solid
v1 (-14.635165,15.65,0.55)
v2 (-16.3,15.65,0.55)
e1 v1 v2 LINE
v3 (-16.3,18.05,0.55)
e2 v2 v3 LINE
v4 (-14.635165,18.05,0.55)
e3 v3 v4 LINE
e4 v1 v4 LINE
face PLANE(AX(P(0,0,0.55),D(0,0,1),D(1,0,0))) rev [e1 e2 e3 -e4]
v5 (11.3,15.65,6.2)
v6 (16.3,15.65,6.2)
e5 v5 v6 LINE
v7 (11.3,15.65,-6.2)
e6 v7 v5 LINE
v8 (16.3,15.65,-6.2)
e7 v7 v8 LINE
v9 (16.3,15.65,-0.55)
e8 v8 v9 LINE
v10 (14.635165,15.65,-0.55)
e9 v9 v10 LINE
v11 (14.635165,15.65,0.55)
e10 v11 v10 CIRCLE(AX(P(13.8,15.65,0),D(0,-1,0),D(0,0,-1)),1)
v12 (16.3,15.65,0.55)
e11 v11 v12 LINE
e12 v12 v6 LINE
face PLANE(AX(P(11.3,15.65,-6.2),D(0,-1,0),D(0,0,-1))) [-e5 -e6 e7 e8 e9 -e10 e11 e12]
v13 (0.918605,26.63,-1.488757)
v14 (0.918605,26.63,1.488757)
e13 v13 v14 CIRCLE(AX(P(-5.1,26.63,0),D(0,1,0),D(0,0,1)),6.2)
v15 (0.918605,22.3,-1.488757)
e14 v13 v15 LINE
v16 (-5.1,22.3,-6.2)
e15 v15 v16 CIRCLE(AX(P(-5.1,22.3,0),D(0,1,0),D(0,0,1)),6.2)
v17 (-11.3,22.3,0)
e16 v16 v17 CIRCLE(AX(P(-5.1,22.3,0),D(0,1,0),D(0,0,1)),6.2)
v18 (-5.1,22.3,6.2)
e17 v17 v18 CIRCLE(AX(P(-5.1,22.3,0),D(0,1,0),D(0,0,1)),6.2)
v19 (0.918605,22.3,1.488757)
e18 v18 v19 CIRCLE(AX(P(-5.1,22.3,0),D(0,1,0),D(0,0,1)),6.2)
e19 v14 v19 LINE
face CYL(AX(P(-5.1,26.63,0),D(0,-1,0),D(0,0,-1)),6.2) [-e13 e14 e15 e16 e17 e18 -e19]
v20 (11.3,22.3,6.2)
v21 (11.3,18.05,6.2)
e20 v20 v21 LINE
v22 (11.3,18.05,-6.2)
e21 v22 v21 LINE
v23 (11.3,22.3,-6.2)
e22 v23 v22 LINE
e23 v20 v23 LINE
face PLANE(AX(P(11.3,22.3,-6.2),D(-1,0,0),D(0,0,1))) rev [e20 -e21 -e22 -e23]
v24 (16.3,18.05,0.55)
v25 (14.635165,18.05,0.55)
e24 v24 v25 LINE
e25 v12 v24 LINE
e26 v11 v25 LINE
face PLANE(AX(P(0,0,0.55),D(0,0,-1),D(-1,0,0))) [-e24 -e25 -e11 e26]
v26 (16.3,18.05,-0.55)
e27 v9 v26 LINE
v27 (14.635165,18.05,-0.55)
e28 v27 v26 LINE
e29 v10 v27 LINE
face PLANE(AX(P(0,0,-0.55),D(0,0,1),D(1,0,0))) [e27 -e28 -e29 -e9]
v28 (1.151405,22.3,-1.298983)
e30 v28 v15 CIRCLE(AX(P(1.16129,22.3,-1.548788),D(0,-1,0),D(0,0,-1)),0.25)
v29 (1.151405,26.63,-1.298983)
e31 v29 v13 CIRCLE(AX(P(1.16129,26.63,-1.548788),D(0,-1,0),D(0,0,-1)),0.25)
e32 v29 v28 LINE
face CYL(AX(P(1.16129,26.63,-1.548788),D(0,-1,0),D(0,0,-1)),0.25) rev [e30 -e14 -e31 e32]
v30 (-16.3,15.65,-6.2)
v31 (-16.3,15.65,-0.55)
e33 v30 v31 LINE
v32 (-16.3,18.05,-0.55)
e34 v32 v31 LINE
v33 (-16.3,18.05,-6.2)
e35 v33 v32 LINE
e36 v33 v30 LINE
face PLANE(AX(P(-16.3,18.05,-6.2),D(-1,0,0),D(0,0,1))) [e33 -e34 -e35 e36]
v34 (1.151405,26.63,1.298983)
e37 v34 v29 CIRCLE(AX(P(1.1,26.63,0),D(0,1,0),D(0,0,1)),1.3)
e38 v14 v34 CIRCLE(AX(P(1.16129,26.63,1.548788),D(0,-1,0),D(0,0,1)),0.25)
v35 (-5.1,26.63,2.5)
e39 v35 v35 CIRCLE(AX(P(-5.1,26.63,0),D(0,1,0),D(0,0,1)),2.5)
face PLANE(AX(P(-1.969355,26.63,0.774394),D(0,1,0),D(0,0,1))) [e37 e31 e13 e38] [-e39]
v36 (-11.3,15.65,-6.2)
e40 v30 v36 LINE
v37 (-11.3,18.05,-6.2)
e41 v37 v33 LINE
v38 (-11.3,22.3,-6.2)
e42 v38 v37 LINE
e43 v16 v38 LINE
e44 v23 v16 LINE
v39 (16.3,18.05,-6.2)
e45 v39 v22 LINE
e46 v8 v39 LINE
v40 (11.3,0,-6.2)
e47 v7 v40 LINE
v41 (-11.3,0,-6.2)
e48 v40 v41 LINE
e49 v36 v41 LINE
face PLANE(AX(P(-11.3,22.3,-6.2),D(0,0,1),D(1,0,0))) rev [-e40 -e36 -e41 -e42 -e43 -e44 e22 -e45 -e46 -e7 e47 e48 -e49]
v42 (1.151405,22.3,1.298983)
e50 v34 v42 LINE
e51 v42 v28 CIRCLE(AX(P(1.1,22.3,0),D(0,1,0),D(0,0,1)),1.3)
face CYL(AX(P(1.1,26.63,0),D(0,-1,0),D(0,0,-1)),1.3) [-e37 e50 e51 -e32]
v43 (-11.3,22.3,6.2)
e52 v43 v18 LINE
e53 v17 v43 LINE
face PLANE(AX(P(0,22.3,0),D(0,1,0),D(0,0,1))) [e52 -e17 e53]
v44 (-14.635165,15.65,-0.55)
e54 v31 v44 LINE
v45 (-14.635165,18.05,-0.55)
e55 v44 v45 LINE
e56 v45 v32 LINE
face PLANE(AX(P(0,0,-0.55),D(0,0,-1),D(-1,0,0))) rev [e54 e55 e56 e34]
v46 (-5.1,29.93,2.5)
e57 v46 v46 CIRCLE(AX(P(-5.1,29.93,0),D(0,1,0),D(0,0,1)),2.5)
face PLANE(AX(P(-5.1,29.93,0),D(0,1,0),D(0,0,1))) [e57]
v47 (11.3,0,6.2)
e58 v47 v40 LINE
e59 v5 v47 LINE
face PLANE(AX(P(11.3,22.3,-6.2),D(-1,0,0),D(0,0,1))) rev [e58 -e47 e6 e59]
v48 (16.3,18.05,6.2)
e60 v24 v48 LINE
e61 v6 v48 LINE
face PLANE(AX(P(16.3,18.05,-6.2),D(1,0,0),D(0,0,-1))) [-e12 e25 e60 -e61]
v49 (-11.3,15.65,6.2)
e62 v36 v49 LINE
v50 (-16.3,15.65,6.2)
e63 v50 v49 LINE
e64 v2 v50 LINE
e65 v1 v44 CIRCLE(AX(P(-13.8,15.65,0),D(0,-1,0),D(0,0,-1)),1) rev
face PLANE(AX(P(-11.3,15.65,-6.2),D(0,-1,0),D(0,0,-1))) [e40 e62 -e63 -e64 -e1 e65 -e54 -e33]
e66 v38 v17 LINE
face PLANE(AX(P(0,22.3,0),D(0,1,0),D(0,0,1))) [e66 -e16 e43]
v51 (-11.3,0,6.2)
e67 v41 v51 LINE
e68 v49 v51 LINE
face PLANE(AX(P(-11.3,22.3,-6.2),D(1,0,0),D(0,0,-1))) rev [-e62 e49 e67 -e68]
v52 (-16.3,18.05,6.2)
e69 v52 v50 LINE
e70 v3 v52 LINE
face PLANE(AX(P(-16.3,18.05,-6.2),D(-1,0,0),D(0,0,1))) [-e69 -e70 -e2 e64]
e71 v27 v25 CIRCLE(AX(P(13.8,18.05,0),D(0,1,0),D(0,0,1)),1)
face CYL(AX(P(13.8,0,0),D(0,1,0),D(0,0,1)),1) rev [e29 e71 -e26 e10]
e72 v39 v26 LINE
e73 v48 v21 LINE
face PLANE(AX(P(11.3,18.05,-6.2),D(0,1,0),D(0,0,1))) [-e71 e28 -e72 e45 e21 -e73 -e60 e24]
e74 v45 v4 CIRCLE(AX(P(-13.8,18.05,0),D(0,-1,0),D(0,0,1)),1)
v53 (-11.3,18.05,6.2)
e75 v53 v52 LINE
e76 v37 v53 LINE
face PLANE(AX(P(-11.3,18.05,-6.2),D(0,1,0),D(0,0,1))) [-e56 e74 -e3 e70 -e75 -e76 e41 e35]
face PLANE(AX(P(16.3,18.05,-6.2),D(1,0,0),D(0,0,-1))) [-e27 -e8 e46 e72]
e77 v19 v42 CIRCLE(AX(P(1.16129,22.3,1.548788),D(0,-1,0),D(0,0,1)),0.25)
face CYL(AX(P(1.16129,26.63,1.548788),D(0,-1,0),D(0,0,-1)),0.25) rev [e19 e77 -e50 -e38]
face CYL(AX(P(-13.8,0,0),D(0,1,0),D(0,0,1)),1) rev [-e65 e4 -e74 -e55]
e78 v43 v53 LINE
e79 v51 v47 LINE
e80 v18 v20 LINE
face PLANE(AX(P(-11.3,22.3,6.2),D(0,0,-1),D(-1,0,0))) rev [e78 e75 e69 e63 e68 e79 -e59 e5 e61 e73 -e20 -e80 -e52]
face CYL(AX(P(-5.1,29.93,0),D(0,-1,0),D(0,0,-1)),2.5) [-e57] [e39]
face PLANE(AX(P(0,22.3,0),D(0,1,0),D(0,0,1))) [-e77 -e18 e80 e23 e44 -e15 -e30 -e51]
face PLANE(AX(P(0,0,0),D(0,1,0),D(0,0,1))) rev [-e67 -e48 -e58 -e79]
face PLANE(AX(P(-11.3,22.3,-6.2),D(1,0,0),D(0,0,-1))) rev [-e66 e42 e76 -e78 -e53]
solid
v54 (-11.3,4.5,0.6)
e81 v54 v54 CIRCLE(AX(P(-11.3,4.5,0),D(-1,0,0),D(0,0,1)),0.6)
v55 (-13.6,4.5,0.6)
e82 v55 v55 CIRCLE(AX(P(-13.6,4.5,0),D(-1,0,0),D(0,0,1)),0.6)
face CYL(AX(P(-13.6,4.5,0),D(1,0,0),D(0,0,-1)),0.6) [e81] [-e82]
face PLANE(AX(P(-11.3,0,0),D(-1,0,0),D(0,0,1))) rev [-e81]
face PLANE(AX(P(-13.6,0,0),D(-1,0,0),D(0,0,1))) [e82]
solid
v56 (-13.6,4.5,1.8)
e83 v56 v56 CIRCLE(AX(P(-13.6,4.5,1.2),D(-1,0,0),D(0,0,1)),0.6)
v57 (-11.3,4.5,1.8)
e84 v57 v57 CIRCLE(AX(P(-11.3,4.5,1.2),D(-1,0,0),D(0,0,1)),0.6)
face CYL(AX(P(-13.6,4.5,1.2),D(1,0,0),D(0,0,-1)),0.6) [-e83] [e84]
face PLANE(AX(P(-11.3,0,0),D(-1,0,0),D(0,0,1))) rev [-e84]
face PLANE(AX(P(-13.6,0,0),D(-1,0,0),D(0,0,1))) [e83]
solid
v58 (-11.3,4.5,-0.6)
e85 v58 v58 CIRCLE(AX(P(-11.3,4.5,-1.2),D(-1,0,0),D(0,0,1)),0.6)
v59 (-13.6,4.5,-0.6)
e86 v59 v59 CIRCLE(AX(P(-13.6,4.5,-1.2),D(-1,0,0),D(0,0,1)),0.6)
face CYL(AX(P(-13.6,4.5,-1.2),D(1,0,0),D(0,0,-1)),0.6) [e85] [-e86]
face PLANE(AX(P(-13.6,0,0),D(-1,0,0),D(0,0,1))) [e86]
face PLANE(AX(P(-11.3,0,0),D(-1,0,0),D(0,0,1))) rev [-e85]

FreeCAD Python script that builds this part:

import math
import FreeCAD as App
import Part
import Sketcher

V = App.Vector

doc = App.newDocument("Part")
params = doc.addObject("Spreadsheet::Sheet", "Params")
for row, (alias, value) in enumerate([
    ("sketch1_width", "22.6 mm"),
    ("sketch1_height", "12.4 mm"),
    ("pad1_length", "22.3 mm"),
    ("sketch2_width", "5 mm"),
    ("sketch2_height", "2.4 mm"),
    ("pad2_length", "12.4 mm"),
    ("sketch3_radius", "1 mm"),
    ("sketch3_height", "1.1 mm"),
    ("sketch4_radius", "6.2 mm"),
    ("sketch4_radius2", "1.3 mm"),
    ("sketch4_radius3", "0.25 mm"),
    ("pad3_length", "4.33 mm"),
    ("sketch5_diameter", "5 mm"),
    ("pad4_length", "3.3 mm"),
    ("sketch6_diameter", "1.2 mm"),
    ("pad5_length", "2.3 mm"),
    ("sketch7_diameter", "1.2 mm"),
    ("pad6_length", "2.3 mm"),
    ("sketch8_diameter", "1.2 mm"),
    ("pad7_length", "2.3 mm"),
], start=1):
    params.set(f"A{row}", alias)
    params.set(f"B{row}", "=" + value)
    params.setAlias(f"B{row}", alias)

body = doc.addObject("PartDesign::Body", "Body")

sketch1 = body.newObject("Sketcher::SketchObject", "Sketch")
sketch1.AttachmentSupport = (doc.getObject("XZ_Plane"), [""])
sketch1.MapMode = "FlatFace"
sketch1.addGeometry([
    Part.LineSegment(V(-11.3, -6.2, 0), V(-11.3, 6.2, 0)),
    Part.LineSegment(V(-11.3, 6.2, 0), V(11.3, 6.2, 0)),
    Part.LineSegment(V(11.3, 6.2, 0), V(11.3, -6.2, 0)),
    Part.LineSegment(V(11.3, -6.2, 0), V(-11.3, -6.2, 0)),
], False)
sketch1.addConstraint([
    Sketcher.Constraint("Coincident", 0, 2, 1, 1),
    Sketcher.Constraint("Coincident", 1, 2, 2, 1),
    Sketcher.Constraint("Coincident", 2, 2, 3, 1),
    Sketcher.Constraint("Coincident", 3, 2, 0, 1),
    Sketcher.Constraint("Vertical", 0),
    Sketcher.Constraint("Horizontal", 1),
    Sketcher.Constraint("Vertical", 2),
    Sketcher.Constraint("Horizontal", 3),
    Sketcher.Constraint("Symmetric", 0, 2, 2, 2, -1, 1),
    Sketcher.Constraint("DistanceX", 1, 1, 1, 2, 22.6),
    Sketcher.Constraint("DistanceY", 0, 1, 0, 2, 12.4),
])
sketch1.setExpression("Constraints[9]", "Params.sketch1_width")
sketch1.setExpression("Constraints[10]", "Params.sketch1_height")
pad1 = body.newObject("PartDesign::Pad", "Pad")
pad1.Profile = sketch1
pad1.setExpression("Length", "Params.pad1_length")
pad1.Reversed = True

sketch2 = body.newObject("Sketcher::SketchObject", "Sketch001")
sketch2.AttachmentSupport = (doc.getObject("XY_Plane"), [""])
sketch2.MapMode = "FlatFace"
sketch2.AttachmentOffset = App.Placement(V(0, 0, 6.2), App.Rotation())
sketch2.addGeometry([
    Part.LineSegment(V(11.3, 18.05, 0), V(11.3, 15.65, 0)),
    Part.LineSegment(V(11.3, 15.65, 0), V(16.3, 15.65, 0)),
    Part.LineSegment(V(16.3, 15.65, 0), V(16.3, 18.05, 0)),
    Part.LineSegment(V(16.3, 18.05, 0), V(11.3, 18.05, 0)),
    Part.LineSegment(V(-16.3, 18.05, 0), V(-16.3, 15.65, 0)),
    Part.LineSegment(V(-16.3, 15.65, 0), V(-11.3, 15.65, 0)),
    Part.LineSegment(V(-11.3, 15.65, 0), V(-11.3, 18.05, 0)),
    Part.LineSegment(V(-11.3, 18.05, 0), V(-16.3, 18.05, 0)),
], False)
sketch2.addConstraint([
    Sketcher.Constraint("Coincident", 0, 2, 1, 1),
    Sketcher.Constraint("Coincident", 1, 2, 2, 1),
    Sketcher.Constraint("Coincident", 2, 2, 3, 1),
    Sketcher.Constraint("Coincident", 3, 2, 0, 1),
    Sketcher.Constraint("Coincident", 4, 2, 5, 1),
    Sketcher.Constraint("Coincident", 5, 2, 6, 1),
    Sketcher.Constraint("Coincident", 6, 2, 7, 1),
    Sketcher.Constraint("Coincident", 7, 2, 4, 1),
    Sketcher.Constraint("Vertical", 0),
    Sketcher.Constraint("Horizontal", 1),
    Sketcher.Constraint("Vertical", 2),
    Sketcher.Constraint("Horizontal", 3),
    Sketcher.Constraint("Vertical", 4),
    Sketcher.Constraint("Horizontal", 5),
    Sketcher.Constraint("Vertical", 6),
    Sketcher.Constraint("Horizontal", 7),
    Sketcher.Constraint("Symmetric", 1, 2, 4, 2, -2),
    Sketcher.Constraint("Symmetric", 3, 2, 6, 2, -2),
    Sketcher.Constraint("DistanceX", 1, 1, 1, 2, 5.0),
    Sketcher.Constraint("DistanceY", 0, 2, 0, 1, 2.4),
    Sketcher.Constraint("DistanceX", -1, 1, 0, 2, 11.3),
    Sketcher.Constraint("DistanceY", -1, 1, 0, 2, 15.65),
])
sketch2.setExpression("Constraints[18]", "Params.sketch2_width")
sketch2.setExpression("Constraints[19]", "Params.sketch2_height")
pad2 = body.newObject("PartDesign::Pad", "Pad001")
pad2.Profile = sketch2
pad2.setExpression("Length", "Params.pad2_length")
pad2.Reversed = True

sketch3 = body.newObject("Sketcher::SketchObject", "Sketch002")
sketch3.AttachmentSupport = (doc.getObject("XZ_Plane"), [""])
sketch3.MapMode = "FlatFace"
sketch3.AttachmentOffset = App.Placement(V(0, 0, -18.05), App.Rotation())
sketch3.addGeometry([
    Part.LineSegment(V(16.3, -0.55, 0), V(14.635165, -0.55, 0)),
    Part.ArcOfCircle(Part.Circle(V(13.8, 0, 0), V(0, 0, 1), 1), math.radians(33.367013), math.radians(326.632987)),
    Part.LineSegment(V(14.635165, 0.55, 0), V(16.3, 0.55, 0)),
    Part.LineSegment(V(16.3, 0.55, 0), V(16.3, -0.55, 0)),
], False)
sketch3.addConstraint([
    Sketcher.Constraint("Coincident", 0, 2, 1, 2),
    Sketcher.Constraint("Coincident", 1, 1, 2, 1),
    Sketcher.Constraint("Coincident", 2, 2, 3, 1),
    Sketcher.Constraint("Coincident", 3, 2, 0, 1),
    Sketcher.Constraint("Horizontal", 0),
    Sketcher.Constraint("Horizontal", 2),
    Sketcher.Constraint("Vertical", 3),
    Sketcher.Constraint("Symmetric", 0, 2, 1, 1, -1),
    Sketcher.Constraint("Radius", 1, 1.0),
    Sketcher.Constraint("DistanceY", 3, 2, 3, 1, 1.1),
    Sketcher.Constraint("DistanceX", -1, 1, 1, 3, 13.8),
    Sketcher.Constraint("DistanceX", -1, 1, 2, 2, 16.3),
])
sketch3.setExpression("Constraints[8]", "Params.sketch3_radius")
sketch3.setExpression("Constraints[9]", "Params.sketch3_height")
pocket1 = body.newObject("PartDesign::Pocket", "Pocket")
pocket1.Profile = sketch3
pocket1.Type = "ThroughAll"
pocket1.Reversed = True
doc.recompute()

mirrored = body.newObject("PartDesign::Mirrored", "Mirrored")
mirrored.Originals = [pocket1]
mirrored.MirrorPlane = (doc.getObject("YZ_Plane"), [""])
body.Tip = mirrored

sketch4 = body.newObject("Sketcher::SketchObject", "Sketch003")
sketch4.AttachmentSupport = (doc.getObject("XZ_Plane"), [""])
sketch4.MapMode = "FlatFace"
sketch4.AttachmentOffset = App.Placement(V(0, 0, -22.3), App.Rotation())
sketch4.addGeometry([
    Part.ArcOfCircle(Part.Circle(V(-5.1, 0, 0), V(0, 0, 1), 6.2), math.radians(13.893749), math.radians(346.106251)),
    Part.ArcOfCircle(Part.Circle(V(1.16129, 1.548788, 0), V(0, 0, 1), 0.25), math.radians(-166.106252), math.radians(-92.266188)),
    Part.ArcOfCircle(Part.Circle(V(1.1, 0, 0), V(0, 0, 1), 1.3), math.radians(-87.733811), math.radians(87.733811)),
    Part.ArcOfCircle(Part.Circle(V(1.16129, -1.548788, 0), V(0, 0, 1), 0.25), math.radians(92.266188), math.radians(166.106252)),
], False)
sketch4.addConstraint([
    Sketcher.Constraint("Tangent", 0, 1, 1, 1),
    Sketcher.Constraint("Tangent", 1, 2, 2, 2),
    Sketcher.Constraint("Tangent", 2, 1, 3, 1),
    Sketcher.Constraint("Tangent", 3, 2, 0, 2),
    Sketcher.Constraint("Equal", 1, 3),
    Sketcher.Constraint("Symmetric", 1, 3, 3, 3, -1),
    Sketcher.Constraint("Radius", 0, 6.2),
    Sketcher.Constraint("Radius", 2, 1.3),
    Sketcher.Constraint("Radius", 1, 0.25),
    Sketcher.Constraint("DistanceX", 0, 3, -1, 1, 5.1),
    Sketcher.Constraint("DistanceX", -1, 1, 2, 3, 1.1),
])
sketch4.setExpression("Constraints[6]", "Params.sketch4_radius")
sketch4.setExpression("Constraints[7]", "Params.sketch4_radius2")
sketch4.setExpression("Constraints[8]", "Params.sketch4_radius3")
pad3 = body.newObject("PartDesign::Pad", "Pad002")
pad3.Profile = sketch4
pad3.setExpression("Length", "Params.pad3_length")
pad3.Reversed = True

sketch5 = body.newObject("Sketcher::SketchObject", "Sketch004")
sketch5.AttachmentSupport = (doc.getObject("XZ_Plane"), [""])
sketch5.MapMode = "FlatFace"
sketch5.AttachmentOffset = App.Placement(V(0, 0, -26.63), App.Rotation())
sketch5.addGeometry(Part.Circle(V(-5.1, 0, 0), V(0, 0, 1), 2.5), False)
sketch5.addConstraint([
    Sketcher.Constraint("PointOnObject", 0, 3, -1),
    Sketcher.Constraint("Diameter", 0, 5.0),
    Sketcher.Constraint("DistanceX", 0, 3, -1, 1, 5.1),
])
sketch5.setExpression("Constraints[1]", "Params.sketch5_diameter")
pad4 = body.newObject("PartDesign::Pad", "Pad003")
pad4.Profile = sketch5
pad4.setExpression("Length", "Params.pad4_length")
pad4.Reversed = True
body2 = doc.addObject("PartDesign::Body", "Body001")

sketch6 = body2.newObject("Sketcher::SketchObject", "Sketch005")
sketch6.AttachmentSupport = (doc.getObject("YZ_Plane001"), [""])
sketch6.MapMode = "FlatFace"
sketch6.AttachmentOffset = App.Placement(V(0, 0, -11.3), App.Rotation())
sketch6.addGeometry(Part.Circle(V(4.5, 1.2, 0), V(0, 0, 1), 0.6), False)
sketch6.addConstraint([
    Sketcher.Constraint("Diameter", 0, 1.2),
    Sketcher.Constraint("DistanceX", -1, 1, 0, 3, 4.5),
    Sketcher.Constraint("DistanceY", -1, 1, 0, 3, 1.2),
])
sketch6.setExpression("Constraints[0]", "Params.sketch6_diameter")
pad5 = body2.newObject("PartDesign::Pad", "Pad004")
pad5.Profile = sketch6
pad5.setExpression("Length", "Params.pad5_length")
pad5.Reversed = True
body3 = doc.addObject("PartDesign::Body", "Body002")

sketch7 = body3.newObject("Sketcher::SketchObject", "Sketch006")
sketch7.AttachmentSupport = (doc.getObject("YZ_Plane002"), [""])
sketch7.MapMode = "FlatFace"
sketch7.AttachmentOffset = App.Placement(V(0, 0, -11.3), App.Rotation())
sketch7.addGeometry(Part.Circle(V(4.5, 0, 0), V(0, 0, 1), 0.6), False)
sketch7.addConstraint([
    Sketcher.Constraint("PointOnObject", 0, 3, -1),
    Sketcher.Constraint("Diameter", 0, 1.2),
    Sketcher.Constraint("DistanceX", -1, 1, 0, 3, 4.5),
])
sketch7.setExpression("Constraints[1]", "Params.sketch7_diameter")
pad6 = body3.newObject("PartDesign::Pad", "Pad005")
pad6.Profile = sketch7
pad6.setExpression("Length", "Params.pad6_length")
pad6.Reversed = True
body4 = doc.addObject("PartDesign::Body", "Body003")

sketch8 = body4.newObject("Sketcher::SketchObject", "Sketch007")
sketch8.AttachmentSupport = (doc.getObject("YZ_Plane003"), [""])
sketch8.MapMode = "FlatFace"
sketch8.AttachmentOffset = App.Placement(V(0, 0, -11.3), App.Rotation())
sketch8.addGeometry(Part.Circle(V(4.5, -1.2, 0), V(0, 0, 1), 0.6), False)
sketch8.addConstraint([
    Sketcher.Constraint("Diameter", 0, 1.2),
    Sketcher.Constraint("DistanceX", -1, 1, 0, 3, 4.5),
    Sketcher.Constraint("DistanceY", 0, 3, -1, 1, 1.2),
])
sketch8.setExpression("Constraints[0]", "Params.sketch8_diameter")
pad7 = body4.newObject("PartDesign::Pad", "Pad006")
pad7.Profile = sketch8
pad7.setExpression("Length", "Params.pad7_length")
pad7.Reversed = True

doc.recompute()
